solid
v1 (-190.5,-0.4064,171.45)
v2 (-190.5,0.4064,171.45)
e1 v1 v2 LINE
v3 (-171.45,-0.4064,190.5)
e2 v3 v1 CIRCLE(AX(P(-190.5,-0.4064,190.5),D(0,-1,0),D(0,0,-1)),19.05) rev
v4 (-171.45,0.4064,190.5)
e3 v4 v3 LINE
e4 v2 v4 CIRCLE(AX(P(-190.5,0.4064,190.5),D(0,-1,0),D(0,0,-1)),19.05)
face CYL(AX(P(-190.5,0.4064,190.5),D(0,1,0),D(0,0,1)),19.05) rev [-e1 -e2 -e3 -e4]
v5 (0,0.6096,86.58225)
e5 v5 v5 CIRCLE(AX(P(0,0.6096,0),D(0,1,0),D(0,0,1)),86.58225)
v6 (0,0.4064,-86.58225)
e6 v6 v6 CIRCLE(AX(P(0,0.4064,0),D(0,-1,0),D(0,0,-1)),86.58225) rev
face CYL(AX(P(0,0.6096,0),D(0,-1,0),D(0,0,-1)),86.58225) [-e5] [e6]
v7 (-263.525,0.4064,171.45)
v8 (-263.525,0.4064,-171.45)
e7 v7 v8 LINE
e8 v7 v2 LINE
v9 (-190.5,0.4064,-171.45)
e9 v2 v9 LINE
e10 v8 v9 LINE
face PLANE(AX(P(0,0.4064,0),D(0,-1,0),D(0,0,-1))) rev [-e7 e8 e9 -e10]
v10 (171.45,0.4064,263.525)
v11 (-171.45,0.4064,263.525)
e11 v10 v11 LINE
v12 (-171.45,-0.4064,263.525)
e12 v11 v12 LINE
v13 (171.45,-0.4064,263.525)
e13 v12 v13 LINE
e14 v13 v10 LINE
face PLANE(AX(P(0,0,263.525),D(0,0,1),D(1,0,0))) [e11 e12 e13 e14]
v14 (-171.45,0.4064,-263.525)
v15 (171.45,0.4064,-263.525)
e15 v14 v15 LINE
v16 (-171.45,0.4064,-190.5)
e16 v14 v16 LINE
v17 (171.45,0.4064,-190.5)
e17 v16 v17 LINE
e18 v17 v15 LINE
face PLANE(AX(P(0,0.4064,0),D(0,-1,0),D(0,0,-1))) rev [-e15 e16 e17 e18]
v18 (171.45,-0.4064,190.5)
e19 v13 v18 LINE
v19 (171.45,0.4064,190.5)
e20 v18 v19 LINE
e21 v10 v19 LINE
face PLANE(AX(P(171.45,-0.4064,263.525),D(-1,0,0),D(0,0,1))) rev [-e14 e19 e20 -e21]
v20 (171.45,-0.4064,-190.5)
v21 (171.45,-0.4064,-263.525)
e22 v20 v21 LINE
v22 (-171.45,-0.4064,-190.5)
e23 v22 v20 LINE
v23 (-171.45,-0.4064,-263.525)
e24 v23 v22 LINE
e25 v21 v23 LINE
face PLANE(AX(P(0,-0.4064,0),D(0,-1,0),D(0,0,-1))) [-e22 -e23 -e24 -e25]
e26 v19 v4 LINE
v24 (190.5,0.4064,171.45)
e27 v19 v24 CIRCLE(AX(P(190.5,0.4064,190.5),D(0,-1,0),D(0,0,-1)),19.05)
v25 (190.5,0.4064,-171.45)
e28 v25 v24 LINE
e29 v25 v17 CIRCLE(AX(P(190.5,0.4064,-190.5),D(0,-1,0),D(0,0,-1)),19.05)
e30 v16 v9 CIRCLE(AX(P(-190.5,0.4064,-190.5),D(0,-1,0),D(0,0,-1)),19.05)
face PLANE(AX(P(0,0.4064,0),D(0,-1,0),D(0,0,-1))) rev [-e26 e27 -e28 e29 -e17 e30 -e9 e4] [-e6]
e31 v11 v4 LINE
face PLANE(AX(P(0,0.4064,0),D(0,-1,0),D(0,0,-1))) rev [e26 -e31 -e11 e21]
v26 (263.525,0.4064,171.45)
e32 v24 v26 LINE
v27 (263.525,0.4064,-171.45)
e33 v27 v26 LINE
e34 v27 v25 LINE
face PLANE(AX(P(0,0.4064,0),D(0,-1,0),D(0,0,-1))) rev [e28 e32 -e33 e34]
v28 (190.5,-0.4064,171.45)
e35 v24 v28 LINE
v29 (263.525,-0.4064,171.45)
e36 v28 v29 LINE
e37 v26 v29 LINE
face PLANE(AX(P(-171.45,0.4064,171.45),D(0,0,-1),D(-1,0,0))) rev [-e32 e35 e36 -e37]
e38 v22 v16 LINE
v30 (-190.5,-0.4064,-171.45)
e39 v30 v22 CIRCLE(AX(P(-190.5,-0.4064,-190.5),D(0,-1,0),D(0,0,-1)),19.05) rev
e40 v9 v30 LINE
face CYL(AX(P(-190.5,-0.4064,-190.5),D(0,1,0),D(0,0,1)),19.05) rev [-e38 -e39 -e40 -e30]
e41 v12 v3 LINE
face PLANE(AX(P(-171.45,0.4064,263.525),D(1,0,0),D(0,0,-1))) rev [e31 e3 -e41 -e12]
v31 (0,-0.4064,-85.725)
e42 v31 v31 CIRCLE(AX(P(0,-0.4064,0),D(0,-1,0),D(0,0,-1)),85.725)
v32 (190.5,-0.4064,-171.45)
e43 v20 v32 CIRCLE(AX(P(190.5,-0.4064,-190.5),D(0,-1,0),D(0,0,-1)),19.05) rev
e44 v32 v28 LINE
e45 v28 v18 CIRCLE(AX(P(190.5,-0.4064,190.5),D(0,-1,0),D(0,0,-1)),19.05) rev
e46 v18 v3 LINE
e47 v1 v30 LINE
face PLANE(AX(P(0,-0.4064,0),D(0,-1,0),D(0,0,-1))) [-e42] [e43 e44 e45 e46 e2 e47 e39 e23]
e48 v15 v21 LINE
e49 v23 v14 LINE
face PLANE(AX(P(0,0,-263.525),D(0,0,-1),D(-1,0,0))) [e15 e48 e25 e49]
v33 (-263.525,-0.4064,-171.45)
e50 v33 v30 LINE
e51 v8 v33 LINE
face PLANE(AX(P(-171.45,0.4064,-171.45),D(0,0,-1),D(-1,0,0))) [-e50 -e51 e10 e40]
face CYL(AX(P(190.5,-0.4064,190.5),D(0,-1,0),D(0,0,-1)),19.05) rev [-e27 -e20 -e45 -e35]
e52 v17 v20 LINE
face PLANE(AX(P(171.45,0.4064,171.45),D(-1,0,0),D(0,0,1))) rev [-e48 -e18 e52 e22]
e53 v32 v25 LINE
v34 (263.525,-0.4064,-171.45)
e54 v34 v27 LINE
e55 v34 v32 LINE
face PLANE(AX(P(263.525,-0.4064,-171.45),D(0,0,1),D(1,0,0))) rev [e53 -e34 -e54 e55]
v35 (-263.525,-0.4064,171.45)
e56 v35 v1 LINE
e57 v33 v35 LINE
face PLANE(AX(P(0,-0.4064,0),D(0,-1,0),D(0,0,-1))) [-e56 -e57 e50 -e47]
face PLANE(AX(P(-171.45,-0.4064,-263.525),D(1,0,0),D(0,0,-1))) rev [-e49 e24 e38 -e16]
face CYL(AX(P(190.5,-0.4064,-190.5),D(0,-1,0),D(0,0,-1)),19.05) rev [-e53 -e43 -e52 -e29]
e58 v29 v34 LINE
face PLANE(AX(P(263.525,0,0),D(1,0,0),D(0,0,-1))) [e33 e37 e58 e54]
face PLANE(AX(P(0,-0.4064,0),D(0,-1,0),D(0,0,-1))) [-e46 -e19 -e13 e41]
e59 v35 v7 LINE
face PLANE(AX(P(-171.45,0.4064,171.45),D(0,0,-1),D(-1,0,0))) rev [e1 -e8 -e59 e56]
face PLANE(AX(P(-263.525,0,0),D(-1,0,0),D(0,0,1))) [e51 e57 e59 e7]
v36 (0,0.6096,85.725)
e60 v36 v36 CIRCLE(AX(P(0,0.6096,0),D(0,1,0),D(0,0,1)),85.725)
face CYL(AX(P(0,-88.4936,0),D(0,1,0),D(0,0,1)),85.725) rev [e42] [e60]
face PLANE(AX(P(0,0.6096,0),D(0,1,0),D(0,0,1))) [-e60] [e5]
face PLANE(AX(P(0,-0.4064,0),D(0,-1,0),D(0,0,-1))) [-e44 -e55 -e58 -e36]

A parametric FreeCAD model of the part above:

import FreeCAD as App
import Part
import Sketcher

V = App.Vector
Q = App.Units.Quantity


def edges_at(feature, points):
    """Names of the edges that pass closest to the given points."""
    edges = feature.Shape.Edges
    near = lambda p: min(range(len(edges)), key=lambda i: edges[i].distToShape(Part.Vertex(*p))[0])
    return sorted({f"Edge{near(p) + 1}" for p in points})

doc = App.newDocument("Part")
params = doc.addObject("Spreadsheet::Sheet", "Params")
for row, (alias, value) in enumerate([
    ("sketch1_width", "13.5 in"),
    ("pad1_length", "0.032 in"),
    ("sketch2_height", "13.5 in"),
    ("sketch2_width", "0.032 in"),
    ("pad2_length", "3.625 in"),
    ("fillet_radius", "0.75 in"),
    ("sketch3_diameter", "6.75 in"),
    ("pocket1_length", "3.5 in"),
    ("sketch4_diameter", "6.75 in"),
    ("pad3_length", "0.016 in"),
], start=1):
    params.set(f"A{row}", alias)
    params.set(f"B{row}", "=" + value)
    params.setAlias(f"B{row}", alias)

body = doc.addObject("PartDesign::Body", "Body")

# Sketch on XZ plane
sketch1 = doc.addObject("Sketcher::SketchObject", "Sketch")
body.addObject(sketch1)
sketch1.AttachmentSupport = (doc.XZ_Plane, [""])
sketch1.MapMode = "FlatFace"
sketch1.addGeometry(Part.LineSegment(V(-171.45, -171.45, 0), V(-171.45, 171.45, 0)), False)
sketch1.addGeometry(Part.LineSegment(V(-171.45, 171.45, 0), V(171.45, 171.45, 0)), False)
sketch1.addGeometry(Part.LineSegment(V(171.45, 171.45, 0), V(171.45, -171.45, 0)), False)
sketch1.addGeometry(Part.LineSegment(V(171.45, -171.45, 0), V(-171.45, -171.45, 0)), False)
sketch1.addConstraint(Sketcher.Constraint("Coincident", 0, 2, 1, 1))
sketch1.addConstraint(Sketcher.Constraint("Coincident", 1, 2, 2, 1))
sketch1.addConstraint(Sketcher.Constraint("Coincident", 2, 2, 3, 1))
sketch1.addConstraint(Sketcher.Constraint("Coincident", 3, 2, 0, 1))
sketch1.addConstraint(Sketcher.Constraint("Vertical", 0))
sketch1.addConstraint(Sketcher.Constraint("Horizontal", 1))
sketch1.addConstraint(Sketcher.Constraint("Vertical", 2))
sketch1.addConstraint(Sketcher.Constraint("Horizontal", 3))
sketch1.addConstraint(Sketcher.Constraint("Symmetric", 0, 2, 2, 2, -1, 1))
sketch1.addConstraint(Sketcher.Constraint("Equal", 3, 0))
sketch1.addConstraint(Sketcher.Constraint("DistanceX", 1, 1, 1, 2, Q("13.5 in")))
sketch1.setExpression("Constraints[10]", "Params.sketch1_width")
pad1 = doc.addObject("PartDesign::Pad", "Pad")
body.addObject(pad1)
pad1.Profile = sketch1
pad1.setExpression("Length", "Params.pad1_length")
pad1.Midplane = True

# Sketch on YZ plane
sketch2 = doc.addObject("Sketcher::SketchObject", "Sketch001")
body.addObject(sketch2)
sketch2.AttachmentSupport = (doc.YZ_Plane, [""])
sketch2.MapMode = "FlatFace"
sketch2.AttachmentOffset = App.Placement(V(0, 0, -6.75 * 25.4), App.Rotation())
sketch2.addGeometry(Part.LineSegment(V(0.4064, -171.45, 0), V(-0.4064, -171.45, 0)), False)
sketch2.addGeometry(Part.LineSegment(V(-0.4064, -171.45, 0), V(-0.4064, 171.45, 0)), False)
sketch2.addGeometry(Part.LineSegment(V(-0.4064, 171.45, 0), V(0.4064, 171.45, 0)), False)
sketch2.addGeometry(Part.LineSegment(V(0.4064, 171.45, 0), V(0.4064, -171.45, 0)), False)
sketch2.addConstraint(Sketcher.Constraint("Coincident", 0, 2, 1, 1))
sketch2.addConstraint(Sketcher.Constraint("Coincident", 1, 2, 2, 1))
sketch2.addConstraint(Sketcher.Constraint("Coincident", 2, 2, 3, 1))
sketch2.addConstraint(Sketcher.Constraint("Coincident", 3, 2, 0, 1))
sketch2.addConstraint(Sketcher.Constraint("Horizontal", 0))
sketch2.addConstraint(Sketcher.Constraint("Vertical", 1))
sketch2.addConstraint(Sketcher.Constraint("Horizontal", 2))
sketch2.addConstraint(Sketcher.Constraint("Vertical", 3))
sketch2.addConstraint(Sketcher.Constraint("Symmetric", 0, 2, 2, 2, -1, 1))
sketch2.addConstraint(Sketcher.Constraint("DistanceY", 1, 1, 1, 2, Q("13.5 in")))
sketch2.addConstraint(Sketcher.Constraint("DistanceX", 0, 2, 0, 1, Q("0.032 in")))
sketch2.setExpression("Constraints[9]", "Params.sketch2_height")
sketch2.setExpression("Constraints[10]", "Params.sketch2_width")
pad2 = doc.addObject("PartDesign::Pad", "Pad001")
body.addObject(pad2)
pad2.Profile = sketch2
pad2.setExpression("Length", "Params.pad2_length")
pad2.Reversed = True
doc.recompute()

polarpattern = doc.addObject("PartDesign::PolarPattern", "PolarPattern")
body.addObject(polarpattern)
polarpattern.Originals = [pad2]
polarpattern.Axis = (doc.Y_Axis, [""])
polarpattern.Angle = 360
polarpattern.Occurrences = 4
body.Tip = polarpattern
doc.recompute()

fillet = doc.addObject("PartDesign::Fillet", "Fillet")
body.addObject(fillet)
fillet.Base = (polarpattern, edges_at(polarpattern, [
    (-171.45, 0, -171.45),
    (171.45, 0, -171.45),
    (-171.45, 0, 171.45),
    (171.45, 0, 171.45),
]))
fillet.setExpression("Radius", "Params.fillet_radius")

# Sketch on XZ plane
sketch3 = doc.addObject("Sketcher::SketchObject", "Sketch002")
body.addObject(sketch3)
sketch3.AttachmentSupport = (doc.XZ_Plane, [""])
sketch3.MapMode = "FlatFace"
sketch3.AttachmentOffset = App.Placement(V(0, 0, -0.016 * 25.4), App.Rotation())
sketch3.addGeometry(Part.Circle(V(0, 0, 0), V(0, 0, 1), 85.725), False)
sketch3.addConstraint(Sketcher.Constraint("Coincident", 0, 3, -1, 1))
sketch3.addConstraint(Sketcher.Constraint("Diameter", 0, Q("6.75 in")))
sketch3.setExpression("Constraints[1]", "Params.sketch3_diameter")
pocket1 = doc.addObject("PartDesign::Pocket", "Pocket")
body.addObject(pocket1)
pocket1.Profile = sketch3
pocket1.setExpression("Length", "Params.pocket1_length")
pocket1.Reversed = True

# Sketch on XZ plane
sketch4 = doc.addObject("Sketcher::SketchObject", "Sketch003")
body.addObject(sketch4)
sketch4.AttachmentSupport = (doc.XZ_Plane, [""])
sketch4.MapMode = "FlatFace"
sketch4.AttachmentOffset = App.Placement(V(0, 0, -0.016 * 25.4), App.Rotation())
sketch4.addGeometry(Part.Circle(V(0, 0, 0), V(0, 0, 1), 86.58225), False)
sketch4.addGeometry(Part.Circle(V(0, 0, 0), V(0, 0, 1), 85.725), False)
sketch4.addConstraint(Sketcher.Constraint("Coincident", 0, 3, -1, 1))
sketch4.addConstraint(Sketcher.Constraint("Coincident", 1, 3, -1, 1))
sketch4.addConstraint(Sketcher.Constraint("Diameter", 1, Q("6.75 in")))
sketch4.addConstraint(Sketcher.Constraint("Diameter", 0, Q("6.8175 in")))
sketch4.setExpression("Constraints[2]", "Params.sketch4_diameter")
pad3 = doc.addObject("PartDesign::Pad", "Pad002")
body.addObject(pad3)
pad3.Profile = sketch4
pad3.setExpression("Length", "Params.pad3_length")
pad3.Midplane = True

doc.recompute()
